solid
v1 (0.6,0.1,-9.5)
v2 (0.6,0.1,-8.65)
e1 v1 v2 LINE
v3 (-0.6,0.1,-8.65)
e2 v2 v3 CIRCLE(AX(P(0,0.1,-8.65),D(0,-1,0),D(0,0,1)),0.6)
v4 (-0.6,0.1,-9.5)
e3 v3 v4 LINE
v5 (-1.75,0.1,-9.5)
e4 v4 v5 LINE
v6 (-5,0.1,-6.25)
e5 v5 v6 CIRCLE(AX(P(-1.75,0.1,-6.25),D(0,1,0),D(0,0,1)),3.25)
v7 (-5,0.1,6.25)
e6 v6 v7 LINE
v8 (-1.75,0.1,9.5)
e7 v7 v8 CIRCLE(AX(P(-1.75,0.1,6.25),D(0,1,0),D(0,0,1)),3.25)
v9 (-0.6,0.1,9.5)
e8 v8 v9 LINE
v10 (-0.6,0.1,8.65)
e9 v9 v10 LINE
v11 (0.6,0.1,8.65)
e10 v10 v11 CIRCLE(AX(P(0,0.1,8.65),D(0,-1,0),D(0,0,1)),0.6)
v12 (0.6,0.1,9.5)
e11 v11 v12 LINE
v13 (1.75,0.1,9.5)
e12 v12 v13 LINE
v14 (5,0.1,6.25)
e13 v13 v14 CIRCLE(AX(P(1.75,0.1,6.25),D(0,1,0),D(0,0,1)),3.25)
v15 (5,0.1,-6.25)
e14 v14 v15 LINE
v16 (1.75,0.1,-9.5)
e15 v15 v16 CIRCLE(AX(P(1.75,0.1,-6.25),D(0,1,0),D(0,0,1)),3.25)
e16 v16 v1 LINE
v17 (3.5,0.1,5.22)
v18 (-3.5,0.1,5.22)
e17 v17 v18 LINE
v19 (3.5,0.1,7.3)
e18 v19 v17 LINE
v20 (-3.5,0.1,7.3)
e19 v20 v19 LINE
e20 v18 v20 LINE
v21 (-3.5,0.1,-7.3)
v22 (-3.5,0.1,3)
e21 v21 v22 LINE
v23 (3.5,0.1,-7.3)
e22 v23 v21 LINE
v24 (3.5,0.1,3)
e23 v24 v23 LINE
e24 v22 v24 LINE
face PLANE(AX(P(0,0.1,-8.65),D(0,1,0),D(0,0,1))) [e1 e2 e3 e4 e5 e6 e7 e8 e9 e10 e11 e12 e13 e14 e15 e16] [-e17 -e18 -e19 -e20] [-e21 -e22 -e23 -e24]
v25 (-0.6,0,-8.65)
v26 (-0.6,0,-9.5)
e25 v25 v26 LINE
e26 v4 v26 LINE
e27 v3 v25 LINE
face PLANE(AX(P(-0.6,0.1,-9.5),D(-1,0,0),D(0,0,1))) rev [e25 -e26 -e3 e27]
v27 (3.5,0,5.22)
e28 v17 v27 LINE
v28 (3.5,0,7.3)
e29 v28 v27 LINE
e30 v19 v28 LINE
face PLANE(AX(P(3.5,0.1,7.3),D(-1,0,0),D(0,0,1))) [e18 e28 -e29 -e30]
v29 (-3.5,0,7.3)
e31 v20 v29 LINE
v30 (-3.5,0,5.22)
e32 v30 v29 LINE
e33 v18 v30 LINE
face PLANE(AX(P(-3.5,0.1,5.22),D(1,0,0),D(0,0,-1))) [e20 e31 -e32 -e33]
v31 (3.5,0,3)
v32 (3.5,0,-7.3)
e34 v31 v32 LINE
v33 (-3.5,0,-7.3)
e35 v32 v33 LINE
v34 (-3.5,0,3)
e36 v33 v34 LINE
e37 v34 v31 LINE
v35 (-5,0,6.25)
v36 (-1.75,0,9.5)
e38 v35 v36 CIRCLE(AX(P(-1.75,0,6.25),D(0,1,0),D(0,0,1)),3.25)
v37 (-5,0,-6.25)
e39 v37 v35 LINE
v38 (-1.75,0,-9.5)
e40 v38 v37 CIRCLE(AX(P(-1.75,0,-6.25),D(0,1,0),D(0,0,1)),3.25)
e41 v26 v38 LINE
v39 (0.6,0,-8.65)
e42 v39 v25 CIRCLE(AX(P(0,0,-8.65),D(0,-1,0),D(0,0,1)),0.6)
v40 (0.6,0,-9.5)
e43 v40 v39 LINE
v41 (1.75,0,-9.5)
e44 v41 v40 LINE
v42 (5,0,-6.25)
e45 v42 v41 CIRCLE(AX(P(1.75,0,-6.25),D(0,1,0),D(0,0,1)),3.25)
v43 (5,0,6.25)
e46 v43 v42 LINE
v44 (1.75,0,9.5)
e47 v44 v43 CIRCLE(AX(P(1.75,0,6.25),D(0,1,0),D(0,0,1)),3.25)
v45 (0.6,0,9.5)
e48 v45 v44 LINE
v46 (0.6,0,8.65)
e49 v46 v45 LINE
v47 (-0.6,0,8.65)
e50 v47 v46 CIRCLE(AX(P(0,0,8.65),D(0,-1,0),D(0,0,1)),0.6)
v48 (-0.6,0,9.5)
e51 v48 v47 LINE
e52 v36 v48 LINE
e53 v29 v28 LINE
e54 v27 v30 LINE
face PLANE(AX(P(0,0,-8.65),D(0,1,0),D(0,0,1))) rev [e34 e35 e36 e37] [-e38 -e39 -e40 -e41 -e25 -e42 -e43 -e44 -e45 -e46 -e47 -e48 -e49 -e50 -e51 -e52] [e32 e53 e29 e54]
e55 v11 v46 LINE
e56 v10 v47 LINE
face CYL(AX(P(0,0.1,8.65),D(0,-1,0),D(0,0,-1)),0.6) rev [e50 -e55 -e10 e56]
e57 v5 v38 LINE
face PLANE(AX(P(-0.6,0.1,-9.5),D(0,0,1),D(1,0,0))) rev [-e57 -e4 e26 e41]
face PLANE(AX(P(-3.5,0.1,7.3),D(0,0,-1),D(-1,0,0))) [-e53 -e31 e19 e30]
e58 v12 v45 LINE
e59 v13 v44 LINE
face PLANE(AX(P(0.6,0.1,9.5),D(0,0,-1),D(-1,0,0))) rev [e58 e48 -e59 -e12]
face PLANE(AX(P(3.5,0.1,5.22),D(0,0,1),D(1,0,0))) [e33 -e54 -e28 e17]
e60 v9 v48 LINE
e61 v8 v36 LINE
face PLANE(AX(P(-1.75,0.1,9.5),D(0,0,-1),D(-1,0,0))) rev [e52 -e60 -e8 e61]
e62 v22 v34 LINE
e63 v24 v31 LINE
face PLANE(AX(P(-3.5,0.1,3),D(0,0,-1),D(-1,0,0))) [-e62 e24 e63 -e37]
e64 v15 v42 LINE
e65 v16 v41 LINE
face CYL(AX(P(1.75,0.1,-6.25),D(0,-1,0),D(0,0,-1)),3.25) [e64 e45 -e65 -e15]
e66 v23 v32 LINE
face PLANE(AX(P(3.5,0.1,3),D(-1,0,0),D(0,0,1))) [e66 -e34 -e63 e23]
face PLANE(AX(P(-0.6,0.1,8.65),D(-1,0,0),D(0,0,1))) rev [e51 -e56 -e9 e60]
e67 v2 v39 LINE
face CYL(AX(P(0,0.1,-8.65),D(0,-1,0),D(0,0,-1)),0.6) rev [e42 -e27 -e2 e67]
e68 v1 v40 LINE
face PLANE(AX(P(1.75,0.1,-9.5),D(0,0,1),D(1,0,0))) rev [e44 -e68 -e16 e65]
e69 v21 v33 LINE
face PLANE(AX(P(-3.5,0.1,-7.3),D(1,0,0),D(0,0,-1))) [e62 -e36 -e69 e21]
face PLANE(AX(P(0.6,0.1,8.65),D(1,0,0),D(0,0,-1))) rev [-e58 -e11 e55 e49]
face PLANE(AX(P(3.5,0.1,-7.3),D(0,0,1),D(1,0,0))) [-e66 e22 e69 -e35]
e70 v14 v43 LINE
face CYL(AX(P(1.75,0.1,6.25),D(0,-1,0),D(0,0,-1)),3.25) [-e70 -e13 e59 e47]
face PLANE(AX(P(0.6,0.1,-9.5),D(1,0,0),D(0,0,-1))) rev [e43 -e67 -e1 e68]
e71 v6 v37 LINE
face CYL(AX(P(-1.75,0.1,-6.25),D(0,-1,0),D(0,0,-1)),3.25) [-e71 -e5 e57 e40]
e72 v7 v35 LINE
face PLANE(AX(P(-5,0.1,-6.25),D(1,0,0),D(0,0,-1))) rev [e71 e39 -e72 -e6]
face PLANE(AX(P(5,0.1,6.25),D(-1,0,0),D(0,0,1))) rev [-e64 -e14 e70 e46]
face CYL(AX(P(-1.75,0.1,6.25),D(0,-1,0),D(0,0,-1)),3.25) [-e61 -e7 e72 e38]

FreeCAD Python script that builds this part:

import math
import FreeCAD as App
import Part
import Sketcher

V = App.Vector

doc = App.newDocument("Part")
params = doc.addObject("Spreadsheet::Sheet", "Params")
for row, (alias, value) in enumerate([
    ("sketch1_radius", "0.6 mm"),
    ("sketch1_width", "7 mm"),
    ("sketch1_radius2", "3.25 mm"),
    ("sketch1_height", "12.5 mm"),
    ("sketch1_height2", "10.3 mm"),
    ("pad1_length", "0.1 mm"),
], start=1):
    params.set(f"A{row}", alias)
    params.set(f"B{row}", "=" + value)
    params.setAlias(f"B{row}", alias)

body = doc.addObject("PartDesign::Body", "Body")

# Sketch on XZ plane
sketch1 = body.newObject("Sketcher::SketchObject", "Sketch")
sketch1.AttachmentSupport = (doc.getObject("XZ_Plane"), [""])
sketch1.MapMode = "FlatFace"
sketch1.addGeometry(Part.LineSegment(V(-0.6, -9.5, 0), V(-1.8, -9.5, 0)), False)
sketch1.addGeometry(Part.ArcOfCircle(Part.Circle(V(-1.8, -6.2, 0), V(0, 0, 1), 3.2), math.radians(180), math.radians(270)), False)
sketch1.addGeometry(Part.LineSegment(V(-5, -6.2, 0), V(-5, 6.2, 0)), False)
sketch1.addGeometry(Part.ArcOfCircle(Part.Circle(V(-1.8, 6.2, 0), V(0, 0, 1), 3.2), math.radians(90), math.radians(180)), False)
sketch1.addGeometry(Part.LineSegment(V(-1.8, 9.5, 0), V(-0.6, 9.5, 0)), False)
sketch1.addGeometry(Part.LineSegment(V(-0.6, 9.5, 0), V(-0.6, 8.7, 0)), False)
sketch1.addGeometry(Part.ArcOfCircle(Part.Circle(V(0, 8.7, 0), V(0, 0, 1), 0.6), math.radians(180), math.radians(360)), False)
sketch1.addGeometry(Part.LineSegment(V(0.6, 8.7, 0), V(0.6, 9.5, 0)), False)
sketch1.addGeometry(Part.LineSegment(V(0.6, 9.5, 0), V(1.8, 9.5, 0)), False)
sketch1.addGeometry(Part.ArcOfCircle(Part.Circle(V(1.8, 6.2, 0), V(0, 0, 1), 3.2), math.radians(0), math.radians(90)), False)
sketch1.addGeometry(Part.LineSegment(V(5, 6.2, 0), V(5, -6.2, 0)), False)
sketch1.addGeometry(Part.ArcOfCircle(Part.Circle(V(1.8, -6.2, 0), V(0, 0, 1), 3.2), math.radians(-90), math.radians(0)), False)
sketch1.addGeometry(Part.LineSegment(V(1.8, -9.5, 0), V(0.6, -9.5, 0)), False)
sketch1.addGeometry(Part.LineSegment(V(0.6, -9.5, 0), V(0.6, -8.7, 0)), False)
sketch1.addGeometry(Part.ArcOfCircle(Part.Circle(V(0, -8.7, 0), V(0, 0, 1), 0.6), math.radians(0), math.radians(180)), False)
sketch1.addGeometry(Part.LineSegment(V(-0.6, -8.7, 0), V(-0.6, -9.5, 0)), False)
sketch1.addGeometry(Part.LineSegment(V(3.5, 7.3, 0), V(-3.5, 7.3, 0)), False)
sketch1.addGeometry(Part.LineSegment(V(-3.5, 7.3, 0), V(-3.5, 5.2, 0)), False)
sketch1.addGeometry(Part.LineSegment(V(-3.5, 5.2, 0), V(3.5, 5.2, 0)), False)
sketch1.addGeometry(Part.LineSegment(V(3.5, 5.2, 0), V(3.5, 7.3, 0)), False)
sketch1.addGeometry(Part.LineSegment(V(3.5, 3, 0), V(-3.5, 3, 0)), False)
sketch1.addGeometry(Part.LineSegment(V(-3.5, 3, 0), V(-3.5, -7.3, 0)), False)
sketch1.addGeometry(Part.LineSegment(V(-3.5, -7.3, 0), V(3.5, -7.3, 0)), False)
sketch1.addGeometry(Part.LineSegment(V(3.5, -7.3, 0), V(3.5, 3, 0)), False)
sketch1.addConstraint(Sketcher.Constraint("Tangent", 0, 2, 1, 2))
sketch1.addConstraint(Sketcher.Constraint("Tangent", 1, 1, 2, 1))
sketch1.addConstraint(Sketcher.Constraint("Tangent", 2, 2, 3, 2))
sketch1.addConstraint(Sketcher.Constraint("Tangent", 3, 1, 4, 1))
sketch1.addConstraint(Sketcher.Constraint("Coincident", 4, 2, 5, 1))
sketch1.addConstraint(Sketcher.Constraint("Tangent", 5, 2, 6, 1))
sketch1.addConstraint(Sketcher.Constraint("Tangent", 6, 2, 7, 1))
sketch1.addConstraint(Sketcher.Constraint("Coincident", 7, 2, 8, 1))
sketch1.addConstraint(Sketcher.Constraint("Tangent", 8, 2, 9, 2))
sketch1.addConstraint(Sketcher.Constraint("Tangent", 9, 1, 10, 1))
sketch1.addConstraint(Sketcher.Constraint("Tangent", 10, 2, 11, 2))
sketch1.addConstraint(Sketcher.Constraint("Tangent", 11, 1, 12, 1))
sketch1.addConstraint(Sketcher.Constraint("Coincident", 12, 2, 13, 1))
sketch1.addConstraint(Sketcher.Constraint("Tangent", 13, 2, 14, 1))
sketch1.addConstraint(Sketcher.Constraint("Tangent", 14, 2, 15, 1))
sketch1.addConstraint(Sketcher.Constraint("Coincident", 15, 2, 0, 1))
sketch1.addConstraint(Sketcher.Constraint("Coincident", 16, 2, 17, 1))
sketch1.addConstraint(Sketcher.Constraint("Coincident", 17, 2, 18, 1))
sketch1.addConstraint(Sketcher.Constraint("Coincident", 18, 2, 19, 1))
sketch1.addConstraint(Sketcher.Constraint("Coincident", 19, 2, 16, 1))
sketch1.addConstraint(Sketcher.Constraint("Coincident", 20, 2, 21, 1))
sketch1.addConstraint(Sketcher.Constraint("Coincident", 21, 2, 22, 1))
sketch1.addConstraint(Sketcher.Constraint("Coincident", 22, 2, 23, 1))
sketch1.addConstraint(Sketcher.Constraint("Coincident", 23, 2, 20, 1))
sketch1.addConstraint(Sketcher.Constraint("Horizontal", 0))
sketch1.addConstraint(Sketcher.Constraint("Vertical", 2))
sketch1.addConstraint(Sketcher.Constraint("Horizontal", 4))
sketch1.addConstraint(Sketcher.Constraint("Vertical", 5))
sketch1.addConstraint(Sketcher.Constraint("Vertical", 7))
sketch1.addConstraint(Sketcher.Constraint("Horizontal", 8))
sketch1.addConstraint(Sketcher.Constraint("Vertical", 10))
sketch1.addConstraint(Sketcher.Constraint("Horizontal", 12))
sketch1.addConstraint(Sketcher.Constraint("Vertical", 13))
sketch1.addConstraint(Sketcher.Constraint("Vertical", 15))
sketch1.addConstraint(Sketcher.Constraint("Horizontal", 16))
sketch1.addConstraint(Sketcher.Constraint("Vertical", 17))
sketch1.addConstraint(Sketcher.Constraint("Horizontal", 18))
sketch1.addConstraint(Sketcher.Constraint("Vertical", 19))
sketch1.addConstraint(Sketcher.Constraint("Horizontal", 20))
sketch1.addConstraint(Sketcher.Constraint("Vertical", 21))
sketch1.addConstraint(Sketcher.Constraint("Horizontal", 22))
sketch1.addConstraint(Sketcher.Constraint("Vertical", 23))
sketch1.addConstraint(Sketcher.Constraint("Equal", 1, 3))
sketch1.addConstraint(Sketcher.Constraint("Equal", 3, 9))
sketch1.addConstraint(Sketcher.Constraint("Equal", 9, 11))
sketch1.addConstraint(Sketcher.Constraint("Equal", 6, 14))
sketch1.addConstraint(Sketcher.Constraint("Symmetric", 1, 3, 9, 3, -1, 1))
sketch1.addConstraint(Sketcher.Constraint("Symmetric", 6, 3, 14, 3, -1, 1))
sketch1.addConstraint(Sketcher.Constraint("Symmetric", 19, 2, 21, 2, -1, 1))
sketch1.addConstraint(Sketcher.Constraint("Symmetric", 4, 2, 7, 2, -2))
sketch1.addConstraint(Sketcher.Constraint("Horizontal", 1, 3, 11, 3))
sketch1.addConstraint(Sketcher.Constraint("Vertical", 17, 2, 20, 2))
sketch1.addConstraint(Sketcher.Constraint("Vertical", 19, 2, 22, 2))
sketch1.addConstraint(Sketcher.Constraint("Radius", 6, 0.6))
sketch1.addConstraint(Sketcher.Constraint("DistanceX", 16, 2, 16, 1, 7.0))
sketch1.addConstraint(Sketcher.Constraint("Radius", 1, 3.25))
sketch1.addConstraint(Sketcher.Constraint("DistanceY", 2, 1, 2, 2, 12.5))
sketch1.addConstraint(Sketcher.Constraint("DistanceY", 21, 2, 21, 1, 10.3))
sketch1.addConstraint(Sketcher.Constraint("DistanceX", 1, 1, -1, 1, 5.0))
sketch1.addConstraint(Sketcher.Constraint("DistanceY", -1, 1, 20, 2, 3.0))
sketch1.addConstraint(Sketcher.Constraint("DistanceY", 5, 2, 5, 1, 0.85))
sketch1.addConstraint(Sketcher.Constraint("DistanceY", 17, 2, 17, 1, 2.08))
sketch1.setExpression("Constraints[53]", "Params.sketch1_radius")
sketch1.setExpression("Constraints[54]", "Params.sketch1_width")
sketch1.setExpression("Constraints[55]", "Params.sketch1_radius2")
sketch1.setExpression("Constraints[56]", "Params.sketch1_height")
sketch1.setExpression("Constraints[57]", "Params.sketch1_height2")
pad1 = body.newObject("PartDesign::Pad", "Pad")
pad1.Profile = sketch1
pad1.setExpression("Length", "Params.pad1_length")
pad1.Reversed = True

doc.recompute()
